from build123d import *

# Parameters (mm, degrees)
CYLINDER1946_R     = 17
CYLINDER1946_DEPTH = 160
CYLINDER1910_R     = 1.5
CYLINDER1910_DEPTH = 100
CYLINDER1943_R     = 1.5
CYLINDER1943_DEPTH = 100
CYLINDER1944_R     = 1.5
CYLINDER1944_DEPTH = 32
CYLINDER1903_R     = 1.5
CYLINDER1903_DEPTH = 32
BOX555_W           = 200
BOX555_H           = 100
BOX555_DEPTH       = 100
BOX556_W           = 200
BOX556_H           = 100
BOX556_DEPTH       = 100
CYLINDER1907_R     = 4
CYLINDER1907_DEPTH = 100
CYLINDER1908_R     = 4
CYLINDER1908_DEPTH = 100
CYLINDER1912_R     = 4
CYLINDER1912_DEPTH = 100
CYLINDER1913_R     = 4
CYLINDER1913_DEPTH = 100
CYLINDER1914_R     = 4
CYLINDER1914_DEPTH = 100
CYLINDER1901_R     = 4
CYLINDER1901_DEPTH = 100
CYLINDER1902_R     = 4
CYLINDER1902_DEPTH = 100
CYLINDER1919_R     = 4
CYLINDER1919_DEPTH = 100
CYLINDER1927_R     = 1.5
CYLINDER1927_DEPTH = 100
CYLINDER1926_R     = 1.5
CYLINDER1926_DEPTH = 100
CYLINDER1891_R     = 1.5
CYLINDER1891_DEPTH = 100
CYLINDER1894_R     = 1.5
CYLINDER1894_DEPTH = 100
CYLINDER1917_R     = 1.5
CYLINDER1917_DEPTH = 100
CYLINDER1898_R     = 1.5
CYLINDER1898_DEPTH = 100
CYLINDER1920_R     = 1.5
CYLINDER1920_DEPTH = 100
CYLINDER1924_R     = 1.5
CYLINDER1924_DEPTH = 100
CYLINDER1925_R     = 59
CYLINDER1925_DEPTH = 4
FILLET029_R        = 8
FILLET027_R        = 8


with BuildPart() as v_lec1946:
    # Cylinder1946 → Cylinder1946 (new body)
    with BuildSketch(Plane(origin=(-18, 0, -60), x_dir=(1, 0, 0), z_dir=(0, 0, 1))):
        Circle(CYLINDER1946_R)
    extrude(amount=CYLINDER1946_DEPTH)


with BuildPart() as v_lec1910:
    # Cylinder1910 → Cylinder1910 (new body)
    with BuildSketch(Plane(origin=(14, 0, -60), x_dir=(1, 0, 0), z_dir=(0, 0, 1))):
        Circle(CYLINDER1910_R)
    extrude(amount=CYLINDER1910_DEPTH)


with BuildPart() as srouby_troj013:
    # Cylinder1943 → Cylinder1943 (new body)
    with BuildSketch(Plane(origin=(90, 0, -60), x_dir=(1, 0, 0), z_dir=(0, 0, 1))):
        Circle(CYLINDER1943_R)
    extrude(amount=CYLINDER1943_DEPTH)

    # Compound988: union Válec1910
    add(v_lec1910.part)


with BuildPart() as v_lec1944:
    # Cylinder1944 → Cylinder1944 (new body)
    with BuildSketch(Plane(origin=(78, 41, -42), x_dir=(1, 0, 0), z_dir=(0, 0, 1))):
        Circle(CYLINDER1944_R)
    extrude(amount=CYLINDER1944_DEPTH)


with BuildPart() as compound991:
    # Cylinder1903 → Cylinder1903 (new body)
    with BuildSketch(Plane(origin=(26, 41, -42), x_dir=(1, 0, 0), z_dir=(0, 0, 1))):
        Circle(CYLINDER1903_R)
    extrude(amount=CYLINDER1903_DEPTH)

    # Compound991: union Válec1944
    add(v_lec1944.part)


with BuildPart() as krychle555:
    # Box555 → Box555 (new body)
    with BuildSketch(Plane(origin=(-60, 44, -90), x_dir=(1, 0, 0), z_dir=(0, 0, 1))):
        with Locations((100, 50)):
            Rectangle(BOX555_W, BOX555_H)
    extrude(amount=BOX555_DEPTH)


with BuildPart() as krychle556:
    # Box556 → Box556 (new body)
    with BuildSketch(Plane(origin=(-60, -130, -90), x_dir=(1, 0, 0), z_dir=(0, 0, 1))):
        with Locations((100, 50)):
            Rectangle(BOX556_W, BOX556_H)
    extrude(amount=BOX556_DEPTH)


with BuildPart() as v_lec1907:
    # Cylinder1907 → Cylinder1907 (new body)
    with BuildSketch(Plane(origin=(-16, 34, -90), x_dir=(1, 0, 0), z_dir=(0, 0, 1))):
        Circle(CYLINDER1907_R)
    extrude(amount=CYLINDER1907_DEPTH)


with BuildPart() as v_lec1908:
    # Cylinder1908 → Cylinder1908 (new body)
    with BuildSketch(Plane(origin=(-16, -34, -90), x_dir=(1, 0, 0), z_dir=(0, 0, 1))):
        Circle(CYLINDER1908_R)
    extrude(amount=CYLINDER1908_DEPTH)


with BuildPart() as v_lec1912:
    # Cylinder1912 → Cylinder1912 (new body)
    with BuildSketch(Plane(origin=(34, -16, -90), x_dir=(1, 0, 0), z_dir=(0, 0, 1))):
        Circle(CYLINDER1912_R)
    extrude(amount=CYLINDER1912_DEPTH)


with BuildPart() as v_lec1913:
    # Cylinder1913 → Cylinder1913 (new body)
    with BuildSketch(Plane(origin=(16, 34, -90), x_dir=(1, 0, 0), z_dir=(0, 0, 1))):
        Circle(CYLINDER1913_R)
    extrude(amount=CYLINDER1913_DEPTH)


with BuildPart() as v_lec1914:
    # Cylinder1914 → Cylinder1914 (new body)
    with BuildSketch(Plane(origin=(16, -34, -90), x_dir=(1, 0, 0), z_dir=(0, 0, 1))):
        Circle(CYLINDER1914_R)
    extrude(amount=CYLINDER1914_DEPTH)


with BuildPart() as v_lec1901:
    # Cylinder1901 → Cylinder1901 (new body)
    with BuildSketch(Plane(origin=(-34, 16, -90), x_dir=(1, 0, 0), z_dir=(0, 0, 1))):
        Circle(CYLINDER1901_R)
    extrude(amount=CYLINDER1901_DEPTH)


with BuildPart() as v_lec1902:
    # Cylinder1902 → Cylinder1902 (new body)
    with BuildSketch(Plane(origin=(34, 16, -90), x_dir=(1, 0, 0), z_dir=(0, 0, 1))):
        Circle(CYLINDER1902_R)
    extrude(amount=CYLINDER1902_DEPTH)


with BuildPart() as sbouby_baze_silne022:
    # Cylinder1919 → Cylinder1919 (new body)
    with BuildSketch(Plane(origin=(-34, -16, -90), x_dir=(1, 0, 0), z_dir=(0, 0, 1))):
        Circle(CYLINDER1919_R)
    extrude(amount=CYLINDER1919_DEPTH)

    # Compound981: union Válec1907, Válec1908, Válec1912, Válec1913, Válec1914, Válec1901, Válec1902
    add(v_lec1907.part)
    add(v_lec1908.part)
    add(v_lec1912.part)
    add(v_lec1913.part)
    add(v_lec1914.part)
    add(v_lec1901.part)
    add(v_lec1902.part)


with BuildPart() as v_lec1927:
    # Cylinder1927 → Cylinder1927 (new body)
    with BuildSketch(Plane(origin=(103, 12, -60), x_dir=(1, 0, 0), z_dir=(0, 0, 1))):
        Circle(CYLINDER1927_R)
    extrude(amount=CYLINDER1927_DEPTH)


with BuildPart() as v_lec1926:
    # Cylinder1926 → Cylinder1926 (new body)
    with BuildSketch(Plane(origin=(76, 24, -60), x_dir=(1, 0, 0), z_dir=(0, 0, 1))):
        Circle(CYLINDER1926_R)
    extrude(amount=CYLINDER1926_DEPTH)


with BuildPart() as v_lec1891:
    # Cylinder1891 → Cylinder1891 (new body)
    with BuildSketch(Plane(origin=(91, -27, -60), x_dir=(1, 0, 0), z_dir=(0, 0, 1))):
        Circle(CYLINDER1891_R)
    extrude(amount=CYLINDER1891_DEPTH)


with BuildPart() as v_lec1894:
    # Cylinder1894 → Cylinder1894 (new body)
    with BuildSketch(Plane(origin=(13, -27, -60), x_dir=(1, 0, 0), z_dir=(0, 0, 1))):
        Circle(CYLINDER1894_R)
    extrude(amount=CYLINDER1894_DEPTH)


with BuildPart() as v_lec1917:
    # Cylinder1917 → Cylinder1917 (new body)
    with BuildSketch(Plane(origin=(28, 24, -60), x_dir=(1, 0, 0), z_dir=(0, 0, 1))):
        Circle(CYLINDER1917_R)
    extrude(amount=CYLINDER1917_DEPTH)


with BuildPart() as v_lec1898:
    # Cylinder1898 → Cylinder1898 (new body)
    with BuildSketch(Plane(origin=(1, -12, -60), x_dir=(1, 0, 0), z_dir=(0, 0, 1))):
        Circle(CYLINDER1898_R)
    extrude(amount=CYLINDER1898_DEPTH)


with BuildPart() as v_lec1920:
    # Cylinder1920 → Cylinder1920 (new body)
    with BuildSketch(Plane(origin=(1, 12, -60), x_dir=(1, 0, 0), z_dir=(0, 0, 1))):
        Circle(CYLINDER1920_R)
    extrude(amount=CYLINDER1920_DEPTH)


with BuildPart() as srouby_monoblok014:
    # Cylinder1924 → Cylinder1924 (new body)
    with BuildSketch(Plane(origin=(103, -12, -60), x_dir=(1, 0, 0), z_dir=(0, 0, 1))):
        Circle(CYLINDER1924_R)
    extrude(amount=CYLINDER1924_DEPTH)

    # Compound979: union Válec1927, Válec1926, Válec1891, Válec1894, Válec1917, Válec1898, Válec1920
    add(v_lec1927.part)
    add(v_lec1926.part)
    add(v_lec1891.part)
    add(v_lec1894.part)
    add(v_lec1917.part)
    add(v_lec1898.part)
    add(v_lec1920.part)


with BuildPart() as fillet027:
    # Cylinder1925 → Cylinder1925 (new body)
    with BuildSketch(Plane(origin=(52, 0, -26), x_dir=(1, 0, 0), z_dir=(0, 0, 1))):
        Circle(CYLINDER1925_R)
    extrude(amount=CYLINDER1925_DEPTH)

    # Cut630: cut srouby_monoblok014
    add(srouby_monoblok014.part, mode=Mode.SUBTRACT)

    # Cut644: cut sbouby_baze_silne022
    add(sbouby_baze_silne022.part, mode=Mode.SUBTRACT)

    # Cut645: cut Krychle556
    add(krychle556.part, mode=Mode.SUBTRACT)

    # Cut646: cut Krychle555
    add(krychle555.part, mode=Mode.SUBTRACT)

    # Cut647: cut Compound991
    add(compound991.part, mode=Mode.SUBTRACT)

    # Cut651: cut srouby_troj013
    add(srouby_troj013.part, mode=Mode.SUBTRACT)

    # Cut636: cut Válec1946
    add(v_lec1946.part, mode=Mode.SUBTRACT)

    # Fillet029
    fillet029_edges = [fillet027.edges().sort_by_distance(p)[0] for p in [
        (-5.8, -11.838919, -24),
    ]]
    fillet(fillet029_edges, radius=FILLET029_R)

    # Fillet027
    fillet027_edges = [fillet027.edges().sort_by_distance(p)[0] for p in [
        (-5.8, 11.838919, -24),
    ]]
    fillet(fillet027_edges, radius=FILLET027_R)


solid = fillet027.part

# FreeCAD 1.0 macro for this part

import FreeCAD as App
import Part
import Sketcher


def edges_at(feature, points):
    """Names of the edges that pass closest to the given points."""
    edges = feature.Shape.Edges
    near = lambda p: min(range(len(edges)), key=lambda i: edges[i].distToShape(Part.Vertex(*p))[0])
    return sorted({f"Edge{near(p) + 1}" for p in points})


def add_polygon(sketch, points):
    """Adds a closed chain of lines whose ends are joined by coincident constraints."""
    first, n = sketch.GeometryCount, len(points)
    for a, b in zip(points, points[1:] + points[:1]):
        sketch.addGeometry(Part.LineSegment(App.Vector(*a, 0), App.Vector(*b, 0)), False)
    for i in range(n):
        sketch.addConstraint(Sketcher.Constraint("Coincident", first + i, 2, first + (i + 1) % n, 1))

doc = App.newDocument("Part")
body = doc.addObject("PartDesign::Body", "Body")

# Sketch on XY plane
sketch1 = body.newObject("Sketcher::SketchObject", "Sketch")
sketch1.AttachmentSupport = (doc.getObject("XY_Plane"), [""])
sketch1.MapMode = "FlatFace"
sketch1.AttachmentOffset = App.Placement(App.Vector(0, 0, -60), App.Rotation())
sketch1.addGeometry(Part.Circle(App.Vector(-18, 0, 0), App.Vector(0, 0, 1), 17), False)
sketch1.addConstraint([
    Sketcher.Constraint("PointOnObject", 0, 3, -1),
    Sketcher.Constraint("Diameter", 0, 34.0),
    Sketcher.Constraint("DistanceX", 0, 3, -1, 1, 18.0),
])
pad1 = body.newObject("PartDesign::Pad", "Pad")
pad1.Profile = sketch1
pad1.Length = 160
body2 = doc.addObject("PartDesign::Body", "Body001")

# Sketch on XY plane
sketch2 = body2.newObject("Sketcher::SketchObject", "Sketch001")
sketch2.AttachmentSupport = (doc.getObject("XY_Plane001"), [""])
sketch2.MapMode = "FlatFace"
sketch2.AttachmentOffset = App.Placement(App.Vector(0, 0, -60), App.Rotation())
sketch2.addGeometry(Part.Circle(App.Vector(14, 0, 0), App.Vector(0, 0, 1), 1.5), False)
sketch2.addConstraint([
    Sketcher.Constraint("PointOnObject", 0, 3, -1),
    Sketcher.Constraint("Diameter", 0, 3.0),
    Sketcher.Constraint("DistanceX", -1, 1, 0, 3, 14.0),
])
pad2 = body2.newObject("PartDesign::Pad", "Pad001")
pad2.Profile = sketch2
pad2.Length = 100
body3 = doc.addObject("PartDesign::Body", "Body002")
body3.AllowCompound = True

# Sketch on XY plane
sketch3 = body3.newObject("Sketcher::SketchObject", "Sketch002")
sketch3.AttachmentSupport = (doc.getObject("XY_Plane002"), [""])
sketch3.MapMode = "FlatFace"
sketch3.AttachmentOffset = App.Placement(App.Vector(0, 0, -60), App.Rotation())
sketch3.addGeometry(Part.Circle(App.Vector(90, 0, 0), App.Vector(0, 0, 1), 1.5), False)
sketch3.addConstraint([
    Sketcher.Constraint("PointOnObject", 0, 3, -1),
    Sketcher.Constraint("Diameter", 0, 3.0),
    Sketcher.Constraint("DistanceX", -1, 1, 0, 3, 90.0),
])
pad3 = body3.newObject("PartDesign::Pad", "Pad002")
pad3.Profile = sketch3
pad3.Length = 100
doc.recompute()

boolean = body3.newObject("PartDesign::Boolean", "Boolean")
boolean.Type = "Fuse"
boolean.addObjects([body2])
body4 = doc.addObject("PartDesign::Body", "Body003")

# Sketch on XY plane
sketch4 = body4.newObject("Sketcher::SketchObject", "Sketch003")
sketch4.AttachmentSupport = (doc.getObject("XY_Plane003"), [""])
sketch4.MapMode = "FlatFace"
sketch4.AttachmentOffset = App.Placement(App.Vector(0, 0, -42), App.Rotation())
sketch4.addGeometry(Part.Circle(App.Vector(78, 41, 0), App.Vector(0, 0, 1), 1.5), False)
sketch4.addConstraint([
    Sketcher.Constraint("Diameter", 0, 3.0),
    Sketcher.Constraint("DistanceX", -1, 1, 0, 3, 78.0),
    Sketcher.Constraint("DistanceY", -1, 1, 0, 3, 41.0),
])
pad4 = body4.newObject("PartDesign::Pad", "Pad003")
pad4.Profile = sketch4
pad4.Length = 32
body5 = doc.addObject("PartDesign::Body", "Body004")
body5.AllowCompound = True

# Sketch on XY plane
sketch5 = body5.newObject("Sketcher::SketchObject", "Sketch004")
sketch5.AttachmentSupport = (doc.getObject("XY_Plane004"), [""])
sketch5.MapMode = "FlatFace"
sketch5.AttachmentOffset = App.Placement(App.Vector(0, 0, -42), App.Rotation())
sketch5.addGeometry(Part.Circle(App.Vector(26, 41, 0), App.Vector(0, 0, 1), 1.5), False)
sketch5.addConstraint([
    Sketcher.Constraint("Diameter", 0, 3.0),
    Sketcher.Constraint("DistanceX", -1, 1, 0, 3, 26.0),
    Sketcher.Constraint("DistanceY", -1, 1, 0, 3, 41.0),
])
pad5 = body5.newObject("PartDesign::Pad", "Pad004")
pad5.Profile = sketch5
pad5.Length = 32
doc.recompute()

boolean2 = body5.newObject("PartDesign::Boolean", "Boolean001")
boolean2.Type = "Fuse"
boolean2.addObjects([body4])
body6 = doc.addObject("PartDesign::Body", "Body005")

# Sketch on XY plane
sketch6 = body6.newObject("Sketcher::SketchObject", "Sketch005")
sketch6.AttachmentSupport = (doc.getObject("XY_Plane005"), [""])
sketch6.MapMode = "FlatFace"
sketch6.AttachmentOffset = App.Placement(App.Vector(0, 0, -90), App.Rotation())
add_polygon(sketch6, [(-60, 144), (-60, 44), (140, 44), (140, 144)])  # lines 0-3
sketch6.addConstraint([
    Sketcher.Constraint("Vertical", 0),
    Sketcher.Constraint("Horizontal", 1),
    Sketcher.Constraint("Vertical", 2),
    Sketcher.Constraint("Horizontal", 3),
    Sketcher.Constraint("DistanceX", 1, 1, 1, 2, 200.0),
    Sketcher.Constraint("DistanceY", 0, 2, 0, 1, 100.0),
    Sketcher.Constraint("DistanceX", 0, 2, -1, 1, 60.0),
    Sketcher.Constraint("DistanceY", -1, 1, 0, 2, 44.0),
])
pad6 = body6.newObject("PartDesign::Pad", "Pad005")
pad6.Profile = sketch6
pad6.Length = 100
body7 = doc.addObject("PartDesign::Body", "Body006")

# Sketch on XY plane
sketch7 = body7.newObject("Sketcher::SketchObject", "Sketch006")
sketch7.AttachmentSupport = (doc.getObject("XY_Plane006"), [""])
sketch7.MapMode = "FlatFace"
sketch7.AttachmentOffset = App.Placement(App.Vector(0, 0, -90), App.Rotation())
add_polygon(sketch7, [(-60, -30), (-60, -130), (140, -130), (140, -30)])  # lines 0-3
sketch7.addConstraint([
    Sketcher.Constraint("Vertical", 0),
    Sketcher.Constraint("Horizontal", 1),
    Sketcher.Constraint("Vertical", 2),
    Sketcher.Constraint("Horizontal", 3),
    Sketcher.Constraint("DistanceX", 1, 1, 1, 2, 200.0),
    Sketcher.Constraint("DistanceY", 0, 2, 0, 1, 100.0),
    Sketcher.Constraint("DistanceX", 0, 2, -1, 1, 60.0),
    Sketcher.Constraint("DistanceY", 0, 2, -1, 1, 130.0),
])
pad7 = body7.newObject("PartDesign::Pad", "Pad006")
pad7.Profile = sketch7
pad7.Length = 100
body8 = doc.addObject("PartDesign::Body", "Body007")

# Sketch on XY plane
sketch8 = body8.newObject("Sketcher::SketchObject", "Sketch007")
sketch8.AttachmentSupport = (doc.getObject("XY_Plane007"), [""])
sketch8.MapMode = "FlatFace"
sketch8.AttachmentOffset = App.Placement(App.Vector(0, 0, -90), App.Rotation())
sketch8.addGeometry(Part.Circle(App.Vector(-16, 34, 0), App.Vector(0, 0, 1), 4), False)
sketch8.addConstraint([
    Sketcher.Constraint("Diameter", 0, 8.0),
    Sketcher.Constraint("DistanceX", 0, 3, -1, 1, 16.0),
    Sketcher.Constraint("DistanceY", -1, 1, 0, 3, 34.0),
])
pad8 = body8.newObject("PartDesign::Pad", "Pad007")
pad8.Profile = sketch8
pad8.Length = 100
body9 = doc.addObject("PartDesign::Body", "Body008")

# Sketch on XY plane
sketch9 = body9.newObject("Sketcher::SketchObject", "Sketch008")
sketch9.AttachmentSupport = (doc.getObject("XY_Plane008"), [""])
sketch9.MapMode = "FlatFace"
sketch9.AttachmentOffset = App.Placement(App.Vector(0, 0, -90), App.Rotation())
sketch9.addGeometry(Part.Circle(App.Vector(-16, -34, 0), App.Vector(0, 0, 1), 4), False)
sketch9.addConstraint([
    Sketcher.Constraint("Diameter", 0, 8.0),
    Sketcher.Constraint("DistanceX", 0, 3, -1, 1, 16.0),
    Sketcher.Constraint("DistanceY", 0, 3, -1, 1, 34.0),
])
pad9 = body9.newObject("PartDesign::Pad", "Pad008")
pad9.Profile = sketch9
pad9.Length = 100
body10 = doc.addObject("PartDesign::Body", "Body009")

# Sketch on XY plane
sketch10 = body10.newObject("Sketcher::SketchObject", "Sketch009")
sketch10.AttachmentSupport = (doc.getObject("XY_Plane009"), [""])
sketch10.MapMode = "FlatFace"
sketch10.AttachmentOffset = App.Placement(App.Vector(0, 0, -90), App.Rotation())
sketch10.addGeometry(Part.Circle(App.Vector(34, -16, 0), App.Vector(0, 0, 1), 4), False)
sketch10.addConstraint([
    Sketcher.Constraint("Diameter", 0, 8.0),
    Sketcher.Constraint("DistanceX", -1, 1, 0, 3, 34.0),
    Sketcher.Constraint("DistanceY", 0, 3, -1, 1, 16.0),
])
pad10 = body10.newObject("PartDesign::Pad", "Pad009")
pad10.Profile = sketch10
pad10.Length = 100
body11 = doc.addObject("PartDesign::Body", "Body010")

# Sketch on XY plane
sketch11 = body11.newObject("Sketcher::SketchObject", "Sketch010")
sketch11.AttachmentSupport = (doc.getObject("XY_Plane010"), [""])
sketch11.MapMode = "FlatFace"
sketch11.AttachmentOffset = App.Placement(App.Vector(0, 0, -90), App.Rotation())
sketch11.addGeometry(Part.Circle(App.Vector(16, 34, 0), App.Vector(0, 0, 1), 4), False)
sketch11.addConstraint([
    Sketcher.Constraint("Diameter", 0, 8.0),
    Sketcher.Constraint("DistanceX", -1, 1, 0, 3, 16.0),
    Sketcher.Constraint("DistanceY", -1, 1, 0, 3, 34.0),
])
pad11 = body11.newObject("PartDesign::Pad", "Pad010")
pad11.Profile = sketch11
pad11.Length = 100
body12 = doc.addObject("PartDesign::Body", "Body011")

# Sketch on XY plane
sketch12 = body12.newObject("Sketcher::SketchObject", "Sketch011")
sketch12.AttachmentSupport = (doc.getObject("XY_Plane011"), [""])
sketch12.MapMode = "FlatFace"
sketch12.AttachmentOffset = App.Placement(App.Vector(0, 0, -90), App.Rotation())
sketch12.addGeometry(Part.Circle(App.Vector(16, -34, 0), App.Vector(0, 0, 1), 4), False)
sketch12.addConstraint([
    Sketcher.Constraint("Diameter", 0, 8.0),
    Sketcher.Constraint("DistanceX", -1, 1, 0, 3, 16.0),
    Sketcher.Constraint("DistanceY", 0, 3, -1, 1, 34.0),
])
pad12 = body12.newObject("PartDesign::Pad", "Pad011")
pad12.Profile = sketch12
pad12.Length = 100
body13 = doc.addObject("PartDesign::Body", "Body012")

# Sketch on XY plane
sketch13 = body13.newObject("Sketcher::SketchObject", "Sketch012")
sketch13.AttachmentSupport = (doc.getObject("XY_Plane012"), [""])
sketch13.MapMode = "FlatFace"
sketch13.AttachmentOffset = App.Placement(App.Vector(0, 0, -90), App.Rotation())
sketch13.addGeometry(Part.Circle(App.Vector(-34, 16, 0), App.Vector(0, 0, 1), 4), False)
sketch13.addConstraint([
    Sketcher.Constraint("Diameter", 0, 8.0),
    Sketcher.Constraint("DistanceX", 0, 3, -1, 1, 34.0),
    Sketcher.Constraint("DistanceY", -1, 1, 0, 3, 16.0),
])
pad13 = body13.newObject("PartDesign::Pad", "Pad012")
pad13.Profile = sketch13
pad13.Length = 100
body14 = doc.addObject("PartDesign::Body", "Body013")

# Sketch on XY plane
sketch14 = body14.newObject("Sketcher::SketchObject", "Sketch013")
sketch14.AttachmentSupport = (doc.getObject("XY_Plane013"), [""])
sketch14.MapMode = "FlatFace"
sketch14.AttachmentOffset = App.Placement(App.Vector(0, 0, -90), App.Rotation())
sketch14.addGeometry(Part.Circle(App.Vector(34, 16, 0), App.Vector(0, 0, 1), 4), False)
sketch14.addConstraint([
    Sketcher.Constraint("Diameter", 0, 8.0),
    Sketcher.Constraint("DistanceX", -1, 1, 0, 3, 34.0),
    Sketcher.Constraint("DistanceY", -1, 1, 0, 3, 16.0),
])
pad14 = body14.newObject("PartDesign::Pad", "Pad013")
pad14.Profile = sketch14
pad14.Length = 100
body15 = doc.addObject("PartDesign::Body", "Body014")
body15.AllowCompound = True

# Sketch on XY plane
sketch15 = body15.newObject("Sketcher::SketchObject", "Sketch014")
sketch15.AttachmentSupport = (doc.getObject("XY_Plane014"), [""])
sketch15.MapMode = "FlatFace"
sketch15.AttachmentOffset = App.Placement(App.Vector(0, 0, -90), App.Rotation())
sketch15.addGeometry(Part.Circle(App.Vector(-34, -16, 0), App.Vector(0, 0, 1), 4), False)
sketch15.addConstraint([
    Sketcher.Constraint("Diameter", 0, 8.0),
    Sketcher.Constraint("DistanceX", 0, 3, -1, 1, 34.0),
    Sketcher.Constraint("DistanceY", 0, 3, -1, 1, 16.0),
])
pad15 = body15.newObject("PartDesign::Pad", "Pad014")
pad15.Profile = sketch15
pad15.Length = 100
doc.recompute()

boolean3 = body15.newObject("PartDesign::Boolean", "Boolean002")
boolean3.Type = "Fuse"
boolean3.addObjects([body8])
doc.recompute()

boolean4 = body15.newObject("PartDesign::Boolean", "Boolean003")
boolean4.Type = "Fuse"
boolean4.addObjects([body9])
doc.recompute()

boolean5 = body15.newObject("PartDesign::Boolean", "Boolean004")
boolean5.Type = "Fuse"
boolean5.addObjects([body10])
doc.recompute()

boolean6 = body15.newObject("PartDesign::Boolean", "Boolean005")
boolean6.Type = "Fuse"
boolean6.addObjects([body11])
doc.recompute()

boolean7 = body15.newObject("PartDesign::Boolean", "Boolean006")
boolean7.Type = "Fuse"
boolean7.addObjects([body12])
doc.recompute()

boolean8 = body15.newObject("PartDesign::Boolean", "Boolean007")
boolean8.Type = "Fuse"
boolean8.addObjects([body13])
doc.recompute()

boolean9 = body15.newObject("PartDesign::Boolean", "Boolean008")
boolean9.Type = "Fuse"
boolean9.addObjects([body14])
body16 = doc.addObject("PartDesign::Body", "Body015")

# Sketch on XY plane
sketch16 = body16.newObject("Sketcher::SketchObject", "Sketch015")
sketch16.AttachmentSupport = (doc.getObject("XY_Plane015"), [""])
sketch16.MapMode = "FlatFace"
sketch16.AttachmentOffset = App.Placement(App.Vector(0, 0, -60), App.Rotation())
sketch16.addGeometry(Part.Circle(App.Vector(103, 12, 0), App.Vector(0, 0, 1), 1.5), False)
sketch16.addConstraint([
    Sketcher.Constraint("Diameter", 0, 3.0),
    Sketcher.Constraint("DistanceX", -1, 1, 0, 3, 103.0),
    Sketcher.Constraint("DistanceY", -1, 1, 0, 3, 12.0),
])
pad16 = body16.newObject("PartDesign::Pad", "Pad015")
pad16.Profile = sketch16
pad16.Length = 100
body17 = doc.addObject("PartDesign::Body", "Body016")

# Sketch on XY plane
sketch17 = body17.newObject("Sketcher::SketchObject", "Sketch016")
sketch17.AttachmentSupport = (doc.getObject("XY_Plane016"), [""])
sketch17.MapMode = "FlatFace"
sketch17.AttachmentOffset = App.Placement(App.Vector(0, 0, -60), App.Rotation())
sketch17.addGeometry(Part.Circle(App.Vector(76, 24, 0), App.Vector(0, 0, 1), 1.5), False)
sketch17.addConstraint([
    Sketcher.Constraint("Diameter", 0, 3.0),
    Sketcher.Constraint("DistanceX", -1, 1, 0, 3, 76.0),
    Sketcher.Constraint("DistanceY", -1, 1, 0, 3, 24.0),
])
pad17 = body17.newObject("PartDesign::Pad", "Pad016")
pad17.Profile = sketch17
pad17.Length = 100
body18 = doc.addObject("PartDesign::Body", "Body017")

# Sketch on XY plane
sketch18 = body18.newObject("Sketcher::SketchObject", "Sketch017")
sketch18.AttachmentSupport = (doc.getObject("XY_Plane017"), [""])
sketch18.MapMode = "FlatFace"
sketch18.AttachmentOffset = App.Placement(App.Vector(0, 0, -60), App.Rotation())
sketch18.addGeometry(Part.Circle(App.Vector(91, -27, 0), App.Vector(0, 0, 1), 1.5), False)
sketch18.addConstraint([
    Sketcher.Constraint("Diameter", 0, 3.0),
    Sketcher.Constraint("DistanceX", -1, 1, 0, 3, 91.0),
    Sketcher.Constraint("DistanceY", 0, 3, -1, 1, 27.0),
])
pad18 = body18.newObject("PartDesign::Pad", "Pad017")
pad18.Profile = sketch18
pad18.Length = 100
body19 = doc.addObject("PartDesign::Body", "Body018")

# Sketch on XY plane
sketch19 = body19.newObject("Sketcher::SketchObject", "Sketch018")
sketch19.AttachmentSupport = (doc.getObject("XY_Plane018"), [""])
sketch19.MapMode = "FlatFace"
sketch19.AttachmentOffset = App.Placement(App.Vector(0, 0, -60), App.Rotation())
sketch19.addGeometry(Part.Circle(App.Vector(13, -27, 0), App.Vector(0, 0, 1), 1.5), False)
sketch19.addConstraint([
    Sketcher.Constraint("Diameter", 0, 3.0),
    Sketcher.Constraint("DistanceX", -1, 1, 0, 3, 13.0),
    Sketcher.Constraint("DistanceY", 0, 3, -1, 1, 27.0),
])
pad19 = body19.newObject("PartDesign::Pad", "Pad018")
pad19.Profile = sketch19
pad19.Length = 100
body20 = doc.addObject("PartDesign::Body", "Body019")

# Sketch on XY plane
sketch20 = body20.newObject("Sketcher::SketchObject", "Sketch019")
sketch20.AttachmentSupport = (doc.getObject("XY_Plane019"), [""])
sketch20.MapMode = "FlatFace"
sketch20.AttachmentOffset = App.Placement(App.Vector(0, 0, -60), App.Rotation())
sketch20.addGeometry(Part.Circle(App.Vector(28, 24, 0), App.Vector(0, 0, 1), 1.5), False)
sketch20.addConstraint([
    Sketcher.Constraint("Diameter", 0, 3.0),
    Sketcher.Constraint("DistanceX", -1, 1, 0, 3, 28.0),
    Sketcher.Constraint("DistanceY", -1, 1, 0, 3, 24.0),
])
pad20 = body20.newObject("PartDesign::Pad", "Pad019")
pad20.Profile = sketch20
pad20.Length = 100
body21 = doc.addObject("PartDesign::Body", "Body020")

# Sketch on XY plane
sketch21 = body21.newObject("Sketcher::SketchObject", "Sketch020")
sketch21.AttachmentSupport = (doc.getObject("XY_Plane020"), [""])
sketch21.MapMode = "FlatFace"
sketch21.AttachmentOffset = App.Placement(App.Vector(0, 0, -60), App.Rotation())
sketch21.addGeometry(Part.Circle(App.Vector(1, -12, 0), App.Vector(0, 0, 1), 1.5), False)
sketch21.addConstraint([
    Sketcher.Constraint("Diameter", 0, 3.0),
    Sketcher.Constraint("DistanceX", -1, 1, 0, 3, 1.0),
    Sketcher.Constraint("DistanceY", 0, 3, -1, 1, 12.0),
])
pad21 = body21.newObject("PartDesign::Pad", "Pad020")
pad21.Profile = sketch21
pad21.Length = 100
body22 = doc.addObject("PartDesign::Body", "Body021")

# Sketch on XY plane
sketch22 = body22.newObject("Sketcher::SketchObject", "Sketch021")
sketch22.AttachmentSupport = (doc.getObject("XY_Plane021"), [""])
sketch22.MapMode = "FlatFace"
sketch22.AttachmentOffset = App.Placement(App.Vector(0, 0, -60), App.Rotation())
sketch22.addGeometry(Part.Circle(App.Vector(1, 12, 0), App.Vector(0, 0, 1), 1.5), False)
sketch22.addConstraint([
    Sketcher.Constraint("Diameter", 0, 3.0),
    Sketcher.Constraint("DistanceX", -1, 1, 0, 3, 1.0),
    Sketcher.Constraint("DistanceY", -1, 1, 0, 3, 12.0),
])
pad22 = body22.newObject("PartDesign::Pad", "Pad021")
pad22.Profile = sketch22
pad22.Length = 100
body23 = doc.addObject("PartDesign::Body", "Body022")
body23.AllowCompound = True

# Sketch on XY plane
sketch23 = body23.newObject("Sketcher::SketchObject", "Sketch022")
sketch23.AttachmentSupport = (doc.getObject("XY_Plane022"), [""])
sketch23.MapMode = "FlatFace"
sketch23.AttachmentOffset = App.Placement(App.Vector(0, 0, -60), App.Rotation())
sketch23.addGeometry(Part.Circle(App.Vector(103, -12, 0), App.Vector(0, 0, 1), 1.5), False)
sketch23.addConstraint([
    Sketcher.Constraint("Diameter", 0, 3.0),
    Sketcher.Constraint("DistanceX", -1, 1, 0, 3, 103.0),
    Sketcher.Constraint("DistanceY", 0, 3, -1, 1, 12.0),
])
pad23 = body23.newObject("PartDesign::Pad", "Pad022")
pad23.Profile = sketch23
pad23.Length = 100
doc.recompute()

boolean10 = body23.newObject("PartDesign::Boolean", "Boolean009")
boolean10.Type = "Fuse"
boolean10.addObjects([body16])
doc.recompute()

boolean11 = body23.newObject("PartDesign::Boolean", "Boolean010")
boolean11.Type = "Fuse"
boolean11.addObjects([body17])
doc.recompute()

boolean12 = body23.newObject("PartDesign::Boolean", "Boolean011")
boolean12.Type = "Fuse"
boolean12.addObjects([body18])
doc.recompute()

boolean13 = body23.newObject("PartDesign::Boolean", "Boolean012")
boolean13.Type = "Fuse"
boolean13.addObjects([body19])
doc.recompute()

boolean14 = body23.newObject("PartDesign::Boolean", "Boolean013")
boolean14.Type = "Fuse"
boolean14.addObjects([body20])
doc.recompute()

boolean15 = body23.newObject("PartDesign::Boolean", "Boolean014")
boolean15.Type = "Fuse"
boolean15.addObjects([body21])
doc.recompute()

boolean16 = body23.newObject("PartDesign::Boolean", "Boolean015")
boolean16.Type = "Fuse"
boolean16.addObjects([body22])
body24 = doc.addObject("PartDesign::Body", "Body023")

# Sketch on XY plane
sketch24 = body24.newObject("Sketcher::SketchObject", "Sketch023")
sketch24.AttachmentSupport = (doc.getObject("XY_Plane023"), [""])
sketch24.MapMode = "FlatFace"
sketch24.AttachmentOffset = App.Placement(App.Vector(0, 0, -26), App.Rotation())
sketch24.addGeometry(Part.Circle(App.Vector(52, 0, 0), App.Vector(0, 0, 1), 59), False)
sketch24.addConstraint([
    Sketcher.Constraint("PointOnObject", 0, 3, -1),
    Sketcher.Constraint("Diameter", 0, 118.0),
    Sketcher.Constraint("DistanceX", -1, 1, 0, 3, 52.0),
])
pad24 = body24.newObject("PartDesign::Pad", "Pad023")
pad24.Profile = sketch24
pad24.Length = 4
doc.recompute()

boolean17 = body24.newObject("PartDesign::Boolean", "Boolean016")
boolean17.Type = "Cut"
boolean17.addObjects([body23])
doc.recompute()

boolean18 = body24.newObject("PartDesign::Boolean", "Boolean017")
boolean18.Type = "Cut"
boolean18.addObjects([body15])
doc.recompute()

boolean19 = body24.newObject("PartDesign::Boolean", "Boolean018")
boolean19.Type = "Cut"
boolean19.addObjects([body7])
doc.recompute()

boolean20 = body24.newObject("PartDesign::Boolean", "Boolean019")
boolean20.Type = "Cut"
boolean20.addObjects([body6])
doc.recompute()

boolean21 = body24.newObject("PartDesign::Boolean", "Boolean020")
boolean21.Type = "Cut"
boolean21.addObjects([body5])
doc.recompute()

boolean22 = body24.newObject("PartDesign::Boolean", "Boolean021")
boolean22.Type = "Cut"
boolean22.addObjects([body3])
doc.recompute()

boolean23 = body24.newObject("PartDesign::Boolean", "Boolean022")
boolean23.Type = "Cut"
boolean23.addObjects([body])
doc.recompute()

fillet = body24.newObject("PartDesign::Fillet", "Fillet")
fillet.Base = (boolean23, edges_at(boolean23, [(-5.8, -11.839, -24)]))
fillet.Radius = 8
doc.recompute()

fillet2 = body24.newObject("PartDesign::Fillet", "Fillet001")
fillet2.Base = (fillet, edges_at(fillet, [(-5.8, 11.839, -24)]))
fillet2.Radius = 8

doc.recompute()
